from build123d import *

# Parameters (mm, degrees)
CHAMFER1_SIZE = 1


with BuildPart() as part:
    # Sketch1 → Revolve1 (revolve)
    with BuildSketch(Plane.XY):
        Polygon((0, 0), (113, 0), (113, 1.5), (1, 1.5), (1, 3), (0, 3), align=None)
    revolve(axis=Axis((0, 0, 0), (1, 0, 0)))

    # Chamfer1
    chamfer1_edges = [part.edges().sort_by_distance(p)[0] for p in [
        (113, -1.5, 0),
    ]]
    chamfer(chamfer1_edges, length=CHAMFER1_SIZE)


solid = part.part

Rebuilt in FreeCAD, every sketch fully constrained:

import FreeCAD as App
import Part
import Sketcher


def edges_at(feature, points):
    """Names of the edges that pass closest to the given points."""
    edges = feature.Shape.Edges
    near = lambda p: min(range(len(edges)), key=lambda i: edges[i].distToShape(Part.Vertex(*p))[0])
    return sorted({f"Edge{near(p) + 1}" for p in points})


def add_polygon(sketch, points):
    """Adds a closed chain of lines whose ends are joined by coincident constraints."""
    first, n = sketch.GeometryCount, len(points)
    for a, b in zip(points, points[1:] + points[:1]):
        sketch.addGeometry(Part.LineSegment(App.Vector(*a, 0), App.Vector(*b, 0)), False)
    for i in range(n):
        sketch.addConstraint(Sketcher.Constraint("Coincident", first + i, 2, first + (i + 1) % n, 1))

doc = App.newDocument("Part")
body = doc.addObject("PartDesign::Body", "Body")

# Sketch on XY plane
sketch1 = body.newObject("Sketcher::SketchObject", "Sketch")
sketch1.AttachmentSupport = (doc.getObject("XY_Plane"), [""])
sketch1.MapMode = "FlatFace"
add_polygon(sketch1, [(0, 0), (113, 0), (113, 1.5), (1, 1.5), (1, 3), (0, 3)])  # lines 0-5
sketch1.addConstraint([
    Sketcher.Constraint("Horizontal", 0),
    Sketcher.Constraint("Vertical", 1),
    Sketcher.Constraint("Horizontal", 2),
    Sketcher.Constraint("Vertical", 3),
    Sketcher.Constraint("Horizontal", 4),
    Sketcher.Constraint("Vertical", 5),
    Sketcher.Constraint("Coincident", 5, 2, -1, 1),
    Sketcher.Constraint("Equal", 1, 3),
    Sketcher.Constraint("DistanceX", 0, 1, 0, 2, 113.0),
    Sketcher.Constraint("DistanceX", 2, 2, 2, 1, 112.0),
    Sketcher.Constraint("DistanceY", 5, 2, 5, 1, 3.0),
])
revolution = body.newObject("PartDesign::Revolution", "Revolution")
revolution.Profile = sketch1
revolution.ReferenceAxis = (sketch1, ["H_Axis"])
revolution.Angle = 360
doc.recompute()

chamfer = body.newObject("PartDesign::Chamfer", "Chamfer")
chamfer.Base = (revolution, edges_at(revolution, [(113, -1.5, 0)]))
chamfer.Size = 1

doc.recompute()
